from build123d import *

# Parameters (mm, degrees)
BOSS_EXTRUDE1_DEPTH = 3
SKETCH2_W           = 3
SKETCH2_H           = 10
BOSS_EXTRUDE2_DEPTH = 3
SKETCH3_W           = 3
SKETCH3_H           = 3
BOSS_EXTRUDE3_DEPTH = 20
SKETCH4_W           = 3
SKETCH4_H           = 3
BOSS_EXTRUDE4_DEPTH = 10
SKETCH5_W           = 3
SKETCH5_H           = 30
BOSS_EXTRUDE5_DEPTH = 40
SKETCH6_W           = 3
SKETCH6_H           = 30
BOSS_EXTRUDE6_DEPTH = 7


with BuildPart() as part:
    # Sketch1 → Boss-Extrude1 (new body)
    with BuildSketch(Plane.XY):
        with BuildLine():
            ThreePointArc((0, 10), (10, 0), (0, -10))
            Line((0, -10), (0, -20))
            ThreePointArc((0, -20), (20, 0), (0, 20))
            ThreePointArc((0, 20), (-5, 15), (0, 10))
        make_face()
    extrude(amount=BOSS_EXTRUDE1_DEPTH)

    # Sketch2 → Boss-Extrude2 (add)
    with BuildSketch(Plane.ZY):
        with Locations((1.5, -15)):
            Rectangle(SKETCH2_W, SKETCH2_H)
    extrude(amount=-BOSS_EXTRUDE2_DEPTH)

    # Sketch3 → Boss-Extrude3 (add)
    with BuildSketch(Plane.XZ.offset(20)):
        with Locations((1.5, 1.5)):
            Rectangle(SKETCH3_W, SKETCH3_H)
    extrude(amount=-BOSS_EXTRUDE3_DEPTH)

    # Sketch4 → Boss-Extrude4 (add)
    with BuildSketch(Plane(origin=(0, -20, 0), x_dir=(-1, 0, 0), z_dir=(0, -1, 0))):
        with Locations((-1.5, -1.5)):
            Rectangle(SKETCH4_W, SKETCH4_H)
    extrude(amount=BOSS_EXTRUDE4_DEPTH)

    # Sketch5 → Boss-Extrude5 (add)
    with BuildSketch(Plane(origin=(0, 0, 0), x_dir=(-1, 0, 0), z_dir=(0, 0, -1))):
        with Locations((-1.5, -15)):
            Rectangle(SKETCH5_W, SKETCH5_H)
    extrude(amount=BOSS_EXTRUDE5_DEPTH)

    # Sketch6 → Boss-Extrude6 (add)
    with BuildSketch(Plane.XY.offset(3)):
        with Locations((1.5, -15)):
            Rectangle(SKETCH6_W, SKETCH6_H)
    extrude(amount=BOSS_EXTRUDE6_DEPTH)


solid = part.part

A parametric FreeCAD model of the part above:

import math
import FreeCAD as App
import Part
import Sketcher

V = App.Vector

doc = App.newDocument("Part")
params = doc.addObject("Spreadsheet::Sheet", "Params")
for row, (alias, value) in enumerate([
    ("sketch1_radius", "10 mm"),
    ("sketch1_radius2", "20 mm"),
    ("pad1_length", "3 mm"),
    ("sketch2_width", "10 mm"),
    ("sketch2_height", "3 mm"),
    ("pad2_length", "3 mm"),
    ("sketch3_width", "3 mm"),
    ("pad3_length", "20 mm"),
    ("sketch4_width", "3 mm"),
    ("pad4_length", "10 mm"),
    ("sketch5_width", "3 mm"),
    ("sketch5_height", "30 mm"),
    ("pad5_length", "40 mm"),
    ("sketch6_width", "3 mm"),
    ("sketch6_height", "30 mm"),
    ("pad6_length", "7 mm"),
], start=1):
    params.set(f"A{row}", alias)
    params.set(f"B{row}", "=" + value)
    params.setAlias(f"B{row}", alias)

body = doc.addObject("PartDesign::Body", "Body")

sketch1 = body.newObject("Sketcher::SketchObject", "Sketch")
sketch1.AttachmentSupport = (doc.getObject("XY_Plane"), [""])
sketch1.MapMode = "FlatFace"
sketch1.addGeometry(Part.ArcOfCircle(Part.Circle(V(0, 0, 0), V(0, 0, 1), 10), math.radians(-90), math.radians(90)), False)
sketch1.addGeometry(Part.LineSegment(V(0, -10, 0), V(0, -20, 0)), False)
sketch1.addGeometry(Part.ArcOfCircle(Part.Circle(V(0, 0, 0), V(0, 0, 1), 20), math.radians(-90), math.radians(90)), False)
sketch1.addGeometry(Part.ArcOfCircle(Part.Circle(V(0, 15, 0), V(0, 0, 1), 5), math.radians(90), math.radians(270)), False)
sketch1.addConstraint(Sketcher.Constraint("Coincident", 0, 1, 1, 1))
sketch1.addConstraint(Sketcher.Constraint("Coincident", 1, 2, 2, 1))
sketch1.addConstraint(Sketcher.Constraint("Tangent", 2, 2, 3, 1))
sketch1.addConstraint(Sketcher.Constraint("Tangent", 3, 2, 0, 2))
sketch1.addConstraint(Sketcher.Constraint("Vertical", 1))
sketch1.addConstraint(Sketcher.Constraint("Coincident", 0, 3, -1, 1))
sketch1.addConstraint(Sketcher.Constraint("Coincident", 2, 3, -1, 1))
sketch1.addConstraint(Sketcher.Constraint("PointOnObject", 3, 3, -2))
sketch1.addConstraint(Sketcher.Constraint("PointOnObject", 0, 1, -2))
sketch1.addConstraint(Sketcher.Constraint("Radius", 0, 10.0))
sketch1.addConstraint(Sketcher.Constraint("Radius", 2, 20.0))
sketch1.setExpression("Constraints[9]", "Params.sketch1_radius")
sketch1.setExpression("Constraints[10]", "Params.sketch1_radius2")
pad1 = body.newObject("PartDesign::Pad", "Pad")
pad1.Profile = sketch1
pad1.setExpression("Length", "Params.pad1_length")

sketch2 = body.newObject("Sketcher::SketchObject", "Sketch001")
sketch2.AttachmentSupport = (doc.getObject("YZ_Plane"), [""])
sketch2.MapMode = "FlatFace"
sketch2.addGeometry(Part.LineSegment(V(-10, 0, 0), V(-20, 0, 0)), False)
sketch2.addGeometry(Part.LineSegment(V(-20, 0, 0), V(-20, 3, 0)), False)
sketch2.addGeometry(Part.LineSegment(V(-20, 3, 0), V(-10, 3, 0)), False)
sketch2.addGeometry(Part.LineSegment(V(-10, 3, 0), V(-10, 0, 0)), False)
sketch2.addConstraint(Sketcher.Constraint("Coincident", 0, 2, 1, 1))
sketch2.addConstraint(Sketcher.Constraint("Coincident", 1, 2, 2, 1))
sketch2.addConstraint(Sketcher.Constraint("Coincident", 2, 2, 3, 1))
sketch2.addConstraint(Sketcher.Constraint("Coincident", 3, 2, 0, 1))
sketch2.addConstraint(Sketcher.Constraint("Horizontal", 0))
sketch2.addConstraint(Sketcher.Constraint("Vertical", 1))
sketch2.addConstraint(Sketcher.Constraint("Horizontal", 2))
sketch2.addConstraint(Sketcher.Constraint("Vertical", 3))
sketch2.addConstraint(Sketcher.Constraint("PointOnObject", 0, 2, -1))
sketch2.addConstraint(Sketcher.Constraint("DistanceX", 0, 2, 0, 1, 10.0))
sketch2.addConstraint(Sketcher.Constraint("DistanceY", 1, 1, 1, 2, 3.0))
sketch2.addConstraint(Sketcher.Constraint("DistanceX", 0, 2, -1, 1, 20.0))
sketch2.setExpression("Constraints[9]", "Params.sketch2_width")
sketch2.setExpression("Constraints[10]", "Params.sketch2_height")
pad2 = body.newObject("PartDesign::Pad", "Pad001")
pad2.Profile = sketch2
pad2.setExpression("Length", "Params.pad2_length")

sketch3 = body.newObject("Sketcher::SketchObject", "Sketch002")
sketch3.AttachmentSupport = (doc.getObject("XZ_Plane"), [""])
sketch3.MapMode = "FlatFace"
sketch3.AttachmentOffset = App.Placement(V(0, 0, 20), App.Rotation())
sketch3.addGeometry(Part.LineSegment(V(0, 3, 0), V(0, 0, 0)), False)
sketch3.addGeometry(Part.LineSegment(V(0, 0, 0), V(3, 0, 0)), False)
sketch3.addGeometry(Part.LineSegment(V(3, 0, 0), V(3, 3, 0)), False)
sketch3.addGeometry(Part.LineSegment(V(3, 3, 0), V(0, 3, 0)), False)
sketch3.addConstraint(Sketcher.Constraint("Coincident", 0, 2, 1, 1))
sketch3.addConstraint(Sketcher.Constraint("Coincident", 1, 2, 2, 1))
sketch3.addConstraint(Sketcher.Constraint("Coincident", 2, 2, 3, 1))
sketch3.addConstraint(Sketcher.Constraint("Coincident", 3, 2, 0, 1))
sketch3.addConstraint(Sketcher.Constraint("Vertical", 0))
sketch3.addConstraint(Sketcher.Constraint("Horizontal", 1))
sketch3.addConstraint(Sketcher.Constraint("Vertical", 2))
sketch3.addConstraint(Sketcher.Constraint("Horizontal", 3))
sketch3.addConstraint(Sketcher.Constraint("Coincident", 0, 2, -1, 1))
sketch3.addConstraint(Sketcher.Constraint("Equal", 3, 0))
sketch3.addConstraint(Sketcher.Constraint("DistanceX", 1, 1, 1, 2, 3.0))
sketch3.setExpression("Constraints[10]", "Params.sketch3_width")
pad3 = body.newObject("PartDesign::Pad", "Pad002")
pad3.Profile = sketch3
pad3.setExpression("Length", "Params.pad3_length")
pad3.Reversed = True

sketch4 = body.newObject("Sketcher::SketchObject", "Sketch003")
sketch4.AttachmentSupport = (doc.getObject("XZ_Plane"), [""])
sketch4.MapMode = "FlatFace"
sketch4.AttachmentOffset = App.Placement(V(0, 0, 20), App.Rotation())
sketch4.addGeometry(Part.LineSegment(V(3, 0, 0), V(3, 3, 0)), False)
sketch4.addGeometry(Part.LineSegment(V(3, 3, 0), V(0, 3, 0)), False)
sketch4.addGeometry(Part.LineSegment(V(0, 3, 0), V(0, 0, 0)), False)
sketch4.addGeometry(Part.LineSegment(V(0, 0, 0), V(3, 0, 0)), False)
sketch4.addConstraint(Sketcher.Constraint("Coincident", 0, 2, 1, 1))
sketch4.addConstraint(Sketcher.Constraint("Coincident", 1, 2, 2, 1))
sketch4.addConstraint(Sketcher.Constraint("Coincident", 2, 2, 3, 1))
sketch4.addConstraint(Sketcher.Constraint("Coincident", 3, 2, 0, 1))
sketch4.addConstraint(Sketcher.Constraint("Vertical", 0))
sketch4.addConstraint(Sketcher.Constraint("Horizontal", 1))
sketch4.addConstraint(Sketcher.Constraint("Vertical", 2))
sketch4.addConstraint(Sketcher.Constraint("Horizontal", 3))
sketch4.addConstraint(Sketcher.Constraint("Coincident", 2, 2, -1, 1))
sketch4.addConstraint(Sketcher.Constraint("Equal", 3, 0))
sketch4.addConstraint(Sketcher.Constraint("DistanceX", 1, 2, 1, 1, 3.0))
sketch4.setExpression("Constraints[10]", "Params.sketch4_width")
pad4 = body.newObject("PartDesign::Pad", "Pad003")
pad4.Profile = sketch4
pad4.setExpression("Length", "Params.pad4_length")

sketch5 = body.newObject("Sketcher::SketchObject", "Sketch004")
sketch5.AttachmentSupport = (doc.getObject("XY_Plane"), [""])
sketch5.MapMode = "FlatFace"
sketch5.addGeometry(Part.LineSegment(V(3, 0, 0), V(3, -30, 0)), False)
sketch5.addGeometry(Part.LineSegment(V(3, -30, 0), V(0, -30, 0)), False)
sketch5.addGeometry(Part.LineSegment(V(0, -30, 0), V(0, 0, 0)), False)
sketch5.addGeometry(Part.LineSegment(V(0, 0, 0), V(3, 0, 0)), False)
sketch5.addConstraint(Sketcher.Constraint("Coincident", 0, 2, 1, 1))
sketch5.addConstraint(Sketcher.Constraint("Coincident", 1, 2, 2, 1))
sketch5.addConstraint(Sketcher.Constraint("Coincident", 2, 2, 3, 1))
sketch5.addConstraint(Sketcher.Constraint("Coincident", 3, 2, 0, 1))
sketch5.addConstraint(Sketcher.Constraint("Vertical", 0))
sketch5.addConstraint(Sketcher.Constraint("Horizontal", 1))
sketch5.addConstraint(Sketcher.Constraint("Vertical", 2))
sketch5.addConstraint(Sketcher.Constraint("Horizontal", 3))
sketch5.addConstraint(Sketcher.Constraint("Coincident", 2, 2, -1, 1))
sketch5.addConstraint(Sketcher.Constraint("DistanceX", 1, 2, 1, 1, 3.0))
sketch5.addConstraint(Sketcher.Constraint("DistanceY", 0, 2, 0, 1, 30.0))
sketch5.setExpression("Constraints[9]", "Params.sketch5_width")
sketch5.setExpression("Constraints[10]", "Params.sketch5_height")
pad5 = body.newObject("PartDesign::Pad", "Pad004")
pad5.Profile = sketch5
pad5.setExpression("Length", "Params.pad5_length")
pad5.Reversed = True

sketch6 = body.newObject("Sketcher::SketchObject", "Sketch005")
sketch6.AttachmentSupport = (doc.getObject("XY_Plane"), [""])
sketch6.MapMode = "FlatFace"
sketch6.AttachmentOffset = App.Placement(V(0, 0, 3), App.Rotation())
sketch6.addGeometry(Part.LineSegment(V(0, 0, 0), V(0, -30, 0)), False)
sketch6.addGeometry(Part.LineSegment(V(0, -30, 0), V(3, -30, 0)), False)
sketch6.addGeometry(Part.LineSegment(V(3, -30, 0), V(3, 0, 0)), False)
sketch6.addGeometry(Part.LineSegment(V(3, 0, 0), V(0, 0, 0)), False)
sketch6.addConstraint(Sketcher.Constraint("Coincident", 0, 2, 1, 1))
sketch6.addConstraint(Sketcher.Constraint("Coincident", 1, 2, 2, 1))
sketch6.addConstraint(Sketcher.Constraint("Coincident", 2, 2, 3, 1))
sketch6.addConstraint(Sketcher.Constraint("Coincident", 3, 2, 0, 1))
sketch6.addConstraint(Sketcher.Constraint("Vertical", 0))
sketch6.addConstraint(Sketcher.Constraint("Horizontal", 1))
sketch6.addConstraint(Sketcher.Constraint("Vertical", 2))
sketch6.addConstraint(Sketcher.Constraint("Horizontal", 3))
sketch6.addConstraint(Sketcher.Constraint("Coincident", 3, 2, -1, 1))
sketch6.addConstraint(Sketcher.Constraint("DistanceX", 1, 1, 1, 2, 3.0))
sketch6.addConstraint(Sketcher.Constraint("DistanceY", 0, 2, 0, 1, 30.0))
sketch6.setExpression("Constraints[9]", "Params.sketch6_width")
sketch6.setExpression("Constraints[10]", "Params.sketch6_height")
pad6 = body.newObject("PartDesign::Pad", "Pad005")
pad6.Profile = sketch6
pad6.setExpression("Length", "Params.pad6_length")

doc.recompute()
